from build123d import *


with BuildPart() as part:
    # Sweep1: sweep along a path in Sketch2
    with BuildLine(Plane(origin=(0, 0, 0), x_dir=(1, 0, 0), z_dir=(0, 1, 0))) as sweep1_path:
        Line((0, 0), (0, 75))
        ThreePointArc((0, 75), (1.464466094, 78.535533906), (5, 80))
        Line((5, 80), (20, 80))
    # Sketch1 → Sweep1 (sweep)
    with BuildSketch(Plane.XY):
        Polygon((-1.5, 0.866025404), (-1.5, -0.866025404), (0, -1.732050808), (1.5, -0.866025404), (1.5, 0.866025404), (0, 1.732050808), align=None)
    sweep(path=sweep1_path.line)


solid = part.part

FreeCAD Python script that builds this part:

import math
import FreeCAD as App
import Part
import Sketcher

V = App.Vector
Q = App.Units.Quantity

doc = App.newDocument("Part")
body = doc.addObject("PartDesign::Body", "Body")

sketch1 = body.newObject("Sketcher::SketchObject", "Sketch")
sketch1.AttachmentSupport = (doc.getObject("XY_Plane"), [""])
sketch1.MapMode = "FlatFace"
sketch1.addGeometry(Part.LineSegment(V(-1.5, 0.9, 0), V(-1.5, -0.9, 0)), False)
sketch1.addGeometry(Part.LineSegment(V(-1.5, -0.9, 0), V(0, -1.7, 0)), False)
sketch1.addGeometry(Part.LineSegment(V(0, -1.7, 0), V(1.5, -0.9, 0)), False)
sketch1.addGeometry(Part.LineSegment(V(1.5, -0.9, 0), V(1.5, 0.9, 0)), False)
sketch1.addGeometry(Part.LineSegment(V(1.5, 0.9, 0), V(0, 1.7, 0)), False)
sketch1.addGeometry(Part.LineSegment(V(0, 1.7, 0), V(-1.5, 0.9, 0)), False)
sketch1.addConstraint(Sketcher.Constraint("Coincident", 0, 2, 1, 1))
sketch1.addConstraint(Sketcher.Constraint("Coincident", 1, 2, 2, 1))
sketch1.addConstraint(Sketcher.Constraint("Coincident", 2, 2, 3, 1))
sketch1.addConstraint(Sketcher.Constraint("Coincident", 3, 2, 4, 1))
sketch1.addConstraint(Sketcher.Constraint("Coincident", 4, 2, 5, 1))
sketch1.addConstraint(Sketcher.Constraint("Coincident", 5, 2, 0, 1))
sketch1.addConstraint(Sketcher.Constraint("Vertical", 0))
sketch1.addConstraint(Sketcher.Constraint("Vertical", 3))
sketch1.addConstraint(Sketcher.Constraint("Symmetric", 0, 2, 3, 2, -1, 1))
sketch1.addConstraint(Sketcher.Constraint("Symmetric", 1, 2, 4, 2, -1, 1))
sketch1.addConstraint(Sketcher.Constraint("PointOnObject", 1, 2, -2))
sketch1.addConstraint(Sketcher.Constraint("Parallel", 2, 5))
sketch1.addConstraint(Sketcher.Constraint("Horizontal", 0, 2, 2, 2))
sketch1.addConstraint(Sketcher.Constraint("Angle", 1, Q("-30 deg")))
sketch1.addConstraint(Sketcher.Constraint("DistanceX", 0, 2, 2, 2, Q("3 mm")))
sketch1.addConstraint(Sketcher.Constraint("DistanceY", 0, 2, 0, 1, Q("1.732051 mm")))

sketch2 = body.newObject("Sketcher::SketchObject", "Sketch001")
sketch2.AttachmentSupport = (doc.getObject("XZ_Plane"), [""])
sketch2.MapMode = "FlatFace"
sketch2.addGeometry(Part.LineSegment(V(0, 0, 0), V(0, -75, 0)), False)
sketch2.addGeometry(Part.ArcOfCircle(Part.Circle(V(5, -75, 0), V(0, 0, 1), 5), math.radians(180), math.radians(270)), False)
sketch2.addGeometry(Part.LineSegment(V(5, -80, 0), V(20, -80, 0)), False)
sketch2.addConstraint(Sketcher.Constraint("Tangent", 0, 2, 1, 1))
sketch2.addConstraint(Sketcher.Constraint("Tangent", 1, 2, 2, 1))
sketch2.addConstraint(Sketcher.Constraint("Vertical", 0))
sketch2.addConstraint(Sketcher.Constraint("Horizontal", 2))
sketch2.addConstraint(Sketcher.Constraint("Coincident", 0, 1, -1, 1))
sketch2.addConstraint(Sketcher.Constraint("Radius", 1, Q("5 mm")))
sketch2.addConstraint(Sketcher.Constraint("DistanceX", 2, 1, 2, 2, Q("15 mm")))
sketch2.addConstraint(Sketcher.Constraint("DistanceY", 0, 2, 0, 1, Q("75 mm")))
doc.recompute()

additivepipe = body.newObject("PartDesign::AdditivePipe", "AdditivePipe")
additivepipe.Profile = sketch1
additivepipe.Spine = (sketch2, ["Edge1", "Edge2", "Edge3"])

doc.recompute()
